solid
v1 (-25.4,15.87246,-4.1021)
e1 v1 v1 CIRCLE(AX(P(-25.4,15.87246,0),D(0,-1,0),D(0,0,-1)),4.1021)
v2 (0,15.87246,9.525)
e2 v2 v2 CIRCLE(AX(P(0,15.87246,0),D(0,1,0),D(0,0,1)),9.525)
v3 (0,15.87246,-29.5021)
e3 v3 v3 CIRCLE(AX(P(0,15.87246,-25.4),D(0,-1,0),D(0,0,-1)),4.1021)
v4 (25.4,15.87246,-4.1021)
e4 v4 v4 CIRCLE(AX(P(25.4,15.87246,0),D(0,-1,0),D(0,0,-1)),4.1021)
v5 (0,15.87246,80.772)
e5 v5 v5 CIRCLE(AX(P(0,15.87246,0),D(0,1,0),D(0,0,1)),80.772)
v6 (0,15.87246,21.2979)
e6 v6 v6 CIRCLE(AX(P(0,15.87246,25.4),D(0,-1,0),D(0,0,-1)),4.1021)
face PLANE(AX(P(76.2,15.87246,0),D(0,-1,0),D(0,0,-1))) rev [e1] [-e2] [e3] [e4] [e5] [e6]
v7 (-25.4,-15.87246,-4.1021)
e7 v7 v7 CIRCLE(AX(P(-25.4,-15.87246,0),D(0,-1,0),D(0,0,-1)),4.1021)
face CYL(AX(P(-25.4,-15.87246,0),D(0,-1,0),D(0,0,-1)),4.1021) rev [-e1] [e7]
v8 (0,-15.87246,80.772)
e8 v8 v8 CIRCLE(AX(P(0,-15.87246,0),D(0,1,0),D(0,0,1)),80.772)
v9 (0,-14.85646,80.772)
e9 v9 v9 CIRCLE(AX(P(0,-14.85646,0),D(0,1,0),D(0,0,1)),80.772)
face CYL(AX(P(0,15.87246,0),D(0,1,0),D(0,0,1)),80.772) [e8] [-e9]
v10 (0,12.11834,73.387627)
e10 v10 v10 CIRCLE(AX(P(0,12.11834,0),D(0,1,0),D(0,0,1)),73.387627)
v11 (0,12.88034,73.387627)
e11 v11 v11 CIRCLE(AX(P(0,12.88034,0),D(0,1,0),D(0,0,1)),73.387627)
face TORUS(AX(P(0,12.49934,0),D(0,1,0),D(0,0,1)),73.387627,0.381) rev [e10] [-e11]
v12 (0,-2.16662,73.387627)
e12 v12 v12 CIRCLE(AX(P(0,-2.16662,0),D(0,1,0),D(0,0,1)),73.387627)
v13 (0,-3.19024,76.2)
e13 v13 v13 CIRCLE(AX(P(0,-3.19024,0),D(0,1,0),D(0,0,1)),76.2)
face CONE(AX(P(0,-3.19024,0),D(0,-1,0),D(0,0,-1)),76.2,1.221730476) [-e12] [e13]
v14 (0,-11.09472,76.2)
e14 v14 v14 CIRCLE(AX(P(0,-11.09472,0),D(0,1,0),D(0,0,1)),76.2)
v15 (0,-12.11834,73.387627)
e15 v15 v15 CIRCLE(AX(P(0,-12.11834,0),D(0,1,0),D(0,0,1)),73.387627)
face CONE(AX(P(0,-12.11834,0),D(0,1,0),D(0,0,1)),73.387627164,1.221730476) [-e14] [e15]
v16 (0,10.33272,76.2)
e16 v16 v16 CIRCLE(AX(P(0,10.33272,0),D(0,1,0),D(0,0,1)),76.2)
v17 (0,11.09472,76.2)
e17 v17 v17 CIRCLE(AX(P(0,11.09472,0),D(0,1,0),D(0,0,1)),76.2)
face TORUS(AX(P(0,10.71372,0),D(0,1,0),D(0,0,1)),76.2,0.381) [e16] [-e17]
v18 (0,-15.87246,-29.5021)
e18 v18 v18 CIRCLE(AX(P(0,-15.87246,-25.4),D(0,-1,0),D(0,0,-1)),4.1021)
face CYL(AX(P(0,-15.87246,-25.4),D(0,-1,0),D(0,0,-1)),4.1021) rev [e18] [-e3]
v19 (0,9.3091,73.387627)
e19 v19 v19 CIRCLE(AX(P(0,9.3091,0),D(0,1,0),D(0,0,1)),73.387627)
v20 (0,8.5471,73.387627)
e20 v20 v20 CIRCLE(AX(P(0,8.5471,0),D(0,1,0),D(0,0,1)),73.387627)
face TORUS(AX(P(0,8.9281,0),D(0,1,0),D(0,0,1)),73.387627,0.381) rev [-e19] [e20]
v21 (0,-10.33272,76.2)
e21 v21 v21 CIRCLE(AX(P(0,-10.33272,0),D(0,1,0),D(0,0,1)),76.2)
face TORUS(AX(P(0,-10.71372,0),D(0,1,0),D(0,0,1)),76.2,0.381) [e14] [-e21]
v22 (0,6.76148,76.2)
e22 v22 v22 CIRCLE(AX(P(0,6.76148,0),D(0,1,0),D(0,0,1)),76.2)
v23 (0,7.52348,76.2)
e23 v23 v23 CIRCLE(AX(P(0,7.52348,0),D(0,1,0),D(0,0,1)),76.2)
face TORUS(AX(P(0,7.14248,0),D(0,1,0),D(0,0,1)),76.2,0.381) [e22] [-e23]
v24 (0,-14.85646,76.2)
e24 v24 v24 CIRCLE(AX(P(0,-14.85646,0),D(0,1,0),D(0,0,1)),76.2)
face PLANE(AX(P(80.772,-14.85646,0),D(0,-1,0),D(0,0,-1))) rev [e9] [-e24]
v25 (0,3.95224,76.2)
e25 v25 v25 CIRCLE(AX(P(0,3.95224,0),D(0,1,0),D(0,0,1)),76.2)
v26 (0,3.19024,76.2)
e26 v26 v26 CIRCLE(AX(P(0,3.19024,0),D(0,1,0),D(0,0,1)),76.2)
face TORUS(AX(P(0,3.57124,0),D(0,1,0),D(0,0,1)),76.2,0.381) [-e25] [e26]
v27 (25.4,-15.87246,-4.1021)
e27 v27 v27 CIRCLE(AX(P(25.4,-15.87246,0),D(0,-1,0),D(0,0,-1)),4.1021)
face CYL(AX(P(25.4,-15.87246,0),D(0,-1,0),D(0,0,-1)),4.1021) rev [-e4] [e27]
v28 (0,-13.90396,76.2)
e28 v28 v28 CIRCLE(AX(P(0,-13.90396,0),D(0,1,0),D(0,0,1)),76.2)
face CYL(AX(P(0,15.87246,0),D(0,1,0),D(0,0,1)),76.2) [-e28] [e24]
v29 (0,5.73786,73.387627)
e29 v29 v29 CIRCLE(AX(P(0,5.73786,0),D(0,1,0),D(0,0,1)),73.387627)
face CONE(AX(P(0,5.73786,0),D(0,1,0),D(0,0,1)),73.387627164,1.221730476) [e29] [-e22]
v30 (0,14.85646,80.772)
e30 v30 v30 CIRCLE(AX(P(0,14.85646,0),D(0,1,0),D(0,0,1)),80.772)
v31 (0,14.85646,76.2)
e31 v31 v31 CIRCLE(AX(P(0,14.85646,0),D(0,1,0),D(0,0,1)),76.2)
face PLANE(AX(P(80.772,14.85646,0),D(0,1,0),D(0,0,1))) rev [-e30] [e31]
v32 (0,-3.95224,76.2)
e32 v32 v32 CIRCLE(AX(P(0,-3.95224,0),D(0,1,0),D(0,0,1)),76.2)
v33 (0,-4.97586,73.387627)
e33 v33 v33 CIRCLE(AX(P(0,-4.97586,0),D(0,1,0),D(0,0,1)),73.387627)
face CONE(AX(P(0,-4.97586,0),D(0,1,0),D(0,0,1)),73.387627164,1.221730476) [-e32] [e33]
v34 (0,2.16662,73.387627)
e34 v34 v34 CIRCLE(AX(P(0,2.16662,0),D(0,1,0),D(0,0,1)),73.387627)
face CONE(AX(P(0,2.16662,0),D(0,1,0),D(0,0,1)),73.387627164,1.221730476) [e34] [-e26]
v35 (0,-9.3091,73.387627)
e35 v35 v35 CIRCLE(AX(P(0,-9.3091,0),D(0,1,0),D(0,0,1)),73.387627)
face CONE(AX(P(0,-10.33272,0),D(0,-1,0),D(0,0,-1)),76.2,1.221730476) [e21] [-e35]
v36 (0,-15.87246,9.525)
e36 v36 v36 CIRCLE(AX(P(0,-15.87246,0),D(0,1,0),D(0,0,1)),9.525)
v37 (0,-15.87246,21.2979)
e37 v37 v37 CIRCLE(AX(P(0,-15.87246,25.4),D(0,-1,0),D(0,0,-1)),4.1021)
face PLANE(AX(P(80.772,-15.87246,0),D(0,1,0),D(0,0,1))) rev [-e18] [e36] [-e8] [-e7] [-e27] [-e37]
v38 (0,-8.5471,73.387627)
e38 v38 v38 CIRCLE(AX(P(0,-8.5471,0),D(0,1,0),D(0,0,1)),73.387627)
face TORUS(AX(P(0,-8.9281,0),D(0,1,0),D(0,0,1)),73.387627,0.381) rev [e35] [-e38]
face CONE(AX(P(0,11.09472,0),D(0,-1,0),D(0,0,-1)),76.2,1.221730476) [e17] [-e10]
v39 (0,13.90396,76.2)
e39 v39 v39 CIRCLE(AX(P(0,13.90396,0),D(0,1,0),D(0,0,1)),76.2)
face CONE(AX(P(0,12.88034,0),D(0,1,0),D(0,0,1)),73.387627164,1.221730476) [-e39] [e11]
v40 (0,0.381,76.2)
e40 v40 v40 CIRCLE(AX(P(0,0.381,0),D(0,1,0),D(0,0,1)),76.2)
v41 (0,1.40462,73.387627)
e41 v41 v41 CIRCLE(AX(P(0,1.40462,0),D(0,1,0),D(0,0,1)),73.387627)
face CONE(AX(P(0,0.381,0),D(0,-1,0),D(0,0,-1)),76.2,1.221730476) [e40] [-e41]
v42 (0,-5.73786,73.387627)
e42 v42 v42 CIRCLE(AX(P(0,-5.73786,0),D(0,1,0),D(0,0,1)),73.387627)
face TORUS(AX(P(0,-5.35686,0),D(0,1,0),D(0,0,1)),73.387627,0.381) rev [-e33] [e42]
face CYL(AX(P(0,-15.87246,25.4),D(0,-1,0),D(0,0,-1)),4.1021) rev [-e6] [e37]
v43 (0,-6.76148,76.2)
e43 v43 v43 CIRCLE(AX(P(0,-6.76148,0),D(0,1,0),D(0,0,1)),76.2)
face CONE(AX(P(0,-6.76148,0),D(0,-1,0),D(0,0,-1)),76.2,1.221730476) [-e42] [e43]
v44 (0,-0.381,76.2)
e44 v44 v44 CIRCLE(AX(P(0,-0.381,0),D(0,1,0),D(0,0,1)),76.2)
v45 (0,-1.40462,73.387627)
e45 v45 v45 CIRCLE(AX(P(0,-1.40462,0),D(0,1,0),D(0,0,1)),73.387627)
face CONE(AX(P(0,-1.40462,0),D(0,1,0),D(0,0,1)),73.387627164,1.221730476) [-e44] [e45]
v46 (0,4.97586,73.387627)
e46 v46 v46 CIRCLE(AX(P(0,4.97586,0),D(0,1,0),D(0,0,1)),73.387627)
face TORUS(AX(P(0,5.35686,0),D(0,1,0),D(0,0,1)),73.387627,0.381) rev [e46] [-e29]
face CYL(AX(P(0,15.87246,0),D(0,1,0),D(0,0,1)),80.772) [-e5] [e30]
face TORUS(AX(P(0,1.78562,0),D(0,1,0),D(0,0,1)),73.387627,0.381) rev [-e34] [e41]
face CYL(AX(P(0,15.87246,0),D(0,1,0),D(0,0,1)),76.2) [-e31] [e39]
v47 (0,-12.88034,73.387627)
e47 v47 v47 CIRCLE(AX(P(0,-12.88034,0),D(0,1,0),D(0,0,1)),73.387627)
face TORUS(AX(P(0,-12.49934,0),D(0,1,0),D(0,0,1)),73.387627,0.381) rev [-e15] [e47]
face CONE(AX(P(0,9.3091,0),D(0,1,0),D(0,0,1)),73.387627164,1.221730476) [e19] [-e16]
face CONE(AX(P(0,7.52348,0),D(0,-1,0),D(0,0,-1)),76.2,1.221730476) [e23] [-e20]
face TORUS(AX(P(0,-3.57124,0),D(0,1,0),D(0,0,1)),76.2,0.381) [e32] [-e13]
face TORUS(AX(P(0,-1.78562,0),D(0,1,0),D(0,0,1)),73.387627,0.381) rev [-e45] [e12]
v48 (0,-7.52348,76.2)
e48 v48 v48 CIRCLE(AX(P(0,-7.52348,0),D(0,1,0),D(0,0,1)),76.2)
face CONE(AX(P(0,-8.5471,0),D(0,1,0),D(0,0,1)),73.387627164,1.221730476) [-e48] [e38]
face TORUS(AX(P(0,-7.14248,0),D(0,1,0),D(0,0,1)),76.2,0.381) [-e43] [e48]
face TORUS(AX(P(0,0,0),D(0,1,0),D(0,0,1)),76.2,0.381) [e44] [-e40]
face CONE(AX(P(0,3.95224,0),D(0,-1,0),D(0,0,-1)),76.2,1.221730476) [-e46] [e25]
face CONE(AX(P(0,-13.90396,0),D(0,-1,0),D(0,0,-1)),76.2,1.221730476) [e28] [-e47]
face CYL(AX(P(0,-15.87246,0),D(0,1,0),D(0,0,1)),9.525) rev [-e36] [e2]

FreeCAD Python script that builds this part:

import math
import FreeCAD as App
import Part
import Sketcher
Q = App.Units.Quantity

doc = App.newDocument("Part")
body = doc.addObject("PartDesign::Body", "Body")

sketch1 = doc.addObject("Sketcher::SketchObject", "Sketch")
body.addObject(sketch1)
sketch1.AttachmentSupport = (doc.XY_Plane, [""])
sketch1.MapMode = "FlatFace"
sketch1.addGeometry([
    Part.LineSegment(App.Vector(76.2, 13.9, 0), App.Vector(76.2, 14.86, 0)),
    Part.LineSegment(App.Vector(76.2, 14.86, 0), App.Vector(80.77, 14.86, 0)),
    Part.LineSegment(App.Vector(80.77, 14.86, 0), App.Vector(80.77, 15.87, 0)),
    Part.LineSegment(App.Vector(80.77, 15.87, 0), App.Vector(0, 15.87, 0)),
    Part.LineSegment(App.Vector(0, 15.87, 0), App.Vector(0, -15.87, 0)),
    Part.LineSegment(App.Vector(0, -15.87, 0), App.Vector(80.77, -15.87, 0)),
    Part.LineSegment(App.Vector(80.77, -15.87, 0), App.Vector(80.77, -14.86, 0)),
    Part.LineSegment(App.Vector(80.77, -14.86, 0), App.Vector(76.2, -14.86, 0)),
    Part.LineSegment(App.Vector(76.2, -14.86, 0), App.Vector(76.2, -13.9, 0)),
    Part.LineSegment(App.Vector(76.2, -13.9, 0), App.Vector(73.39, -12.88, 0)),
    Part.ArcOfCircle(Part.Circle(App.Vector(73.39, -12.5, 0), App.Vector(0, 0, 1), 0.38), math.radians(90), math.radians(270)),
    Part.LineSegment(App.Vector(73.39, -12.12, 0), App.Vector(76.2, -11.09, 0)),
    Part.ArcOfCircle(Part.Circle(App.Vector(76.2, -10.71, 0), App.Vector(0, 0, 1), 0.38), math.radians(-90), math.radians(90)),
    Part.LineSegment(App.Vector(76.2, -10.33, 0), App.Vector(73.39, -9.31, 0)),
    Part.ArcOfCircle(Part.Circle(App.Vector(73.39, -8.93, 0), App.Vector(0, 0, 1), 0.38), math.radians(90), math.radians(270)),
    Part.LineSegment(App.Vector(73.39, -8.55, 0), App.Vector(76.2, -7.52, 0)),
    Part.ArcOfCircle(Part.Circle(App.Vector(76.2, -7.14, 0), App.Vector(0, 0, 1), 0.38), math.radians(-90), math.radians(90)),
    Part.LineSegment(App.Vector(76.2, -6.76, 0), App.Vector(73.39, -5.74, 0)),
    Part.ArcOfCircle(Part.Circle(App.Vector(73.39, -5.36, 0), App.Vector(0, 0, 1), 0.38), math.radians(90), math.radians(270)),
    Part.LineSegment(App.Vector(73.39, -4.98, 0), App.Vector(76.2, -3.95, 0)),
    Part.ArcOfCircle(Part.Circle(App.Vector(76.2, -3.57, 0), App.Vector(0, 0, 1), 0.38), math.radians(-90), math.radians(90)),
    Part.LineSegment(App.Vector(76.2, -3.19, 0), App.Vector(73.39, -2.17, 0)),
    Part.ArcOfCircle(Part.Circle(App.Vector(73.39, -1.79, 0), App.Vector(0, 0, 1), 0.38), math.radians(90), math.radians(270)),
    Part.LineSegment(App.Vector(73.39, -1.4, 0), App.Vector(76.2, -0.38, 0)),
    Part.ArcOfCircle(Part.Circle(App.Vector(76.2, 0, 0), App.Vector(0, 0, 1), 0.38), math.radians(-90), math.radians(90)),
    Part.LineSegment(App.Vector(76.2, 0.38, 0), App.Vector(73.39, 1.4, 0)),
    Part.ArcOfCircle(Part.Circle(App.Vector(73.39, 1.79, 0), App.Vector(0, 0, 1), 0.38), math.radians(90), math.radians(270)),
    Part.LineSegment(App.Vector(73.39, 2.17, 0), App.Vector(76.2, 3.19, 0)),
    Part.ArcOfCircle(Part.Circle(App.Vector(76.2, 3.57, 0), App.Vector(0, 0, 1), 0.38), math.radians(-90), math.radians(90)),
    Part.LineSegment(App.Vector(76.2, 3.95, 0), App.Vector(73.39, 4.98, 0)),
    Part.ArcOfCircle(Part.Circle(App.Vector(73.39, 5.36, 0), App.Vector(0, 0, 1), 0.38), math.radians(90), math.radians(270)),
    Part.LineSegment(App.Vector(73.39, 5.74, 0), App.Vector(76.2, 6.76, 0)),
    Part.ArcOfCircle(Part.Circle(App.Vector(76.2, 7.14, 0), App.Vector(0, 0, 1), 0.38), math.radians(-90), math.radians(90)),
    Part.LineSegment(App.Vector(76.2, 7.52, 0), App.Vector(73.39, 8.55, 0)),
    Part.ArcOfCircle(Part.Circle(App.Vector(73.39, 8.93, 0), App.Vector(0, 0, 1), 0.38), math.radians(90), math.radians(270)),
    Part.LineSegment(App.Vector(73.39, 9.31, 0), App.Vector(76.2, 10.33, 0)),
    Part.ArcOfCircle(Part.Circle(App.Vector(76.2, 10.71, 0), App.Vector(0, 0, 1), 0.38), math.radians(-90), math.radians(90)),
    Part.LineSegment(App.Vector(76.2, 11.09, 0), App.Vector(73.39, 12.12, 0)),
    Part.ArcOfCircle(Part.Circle(App.Vector(73.39, 12.5, 0), App.Vector(0, 0, 1), 0.38), math.radians(90), math.radians(270)),
    Part.LineSegment(App.Vector(73.39, 12.88, 0), App.Vector(76.2, 13.9, 0)),
], False)
sketch1.addConstraint([
    Sketcher.Constraint("Coincident", 0, 2, 1, 1),
    Sketcher.Constraint("Coincident", 1, 2, 2, 1),
    Sketcher.Constraint("Coincident", 2, 2, 3, 1),
    Sketcher.Constraint("Coincident", 3, 2, 4, 1),
    Sketcher.Constraint("Coincident", 4, 2, 5, 1),
    Sketcher.Constraint("Coincident", 5, 2, 6, 1),
    Sketcher.Constraint("Coincident", 6, 2, 7, 1),
    Sketcher.Constraint("Coincident", 7, 2, 8, 1),
    Sketcher.Constraint("Coincident", 8, 2, 9, 1),
    Sketcher.Constraint("Coincident", 9, 2, 10, 2),
    Sketcher.Constraint("Coincident", 10, 1, 11, 1),
    Sketcher.Constraint("Coincident", 11, 2, 12, 1),
    Sketcher.Constraint("Coincident", 12, 2, 13, 1),
    Sketcher.Constraint("Coincident", 13, 2, 14, 2),
    Sketcher.Constraint("Coincident", 14, 1, 15, 1),
    Sketcher.Constraint("Coincident", 15, 2, 16, 1),
    Sketcher.Constraint("Coincident", 16, 2, 17, 1),
    Sketcher.Constraint("Coincident", 17, 2, 18, 2),
    Sketcher.Constraint("Coincident", 18, 1, 19, 1),
    Sketcher.Constraint("Coincident", 19, 2, 20, 1),
    Sketcher.Constraint("Coincident", 20, 2, 21, 1),
    Sketcher.Constraint("Coincident", 21, 2, 22, 2),
    Sketcher.Constraint("Coincident", 22, 1, 23, 1),
    Sketcher.Constraint("Coincident", 23, 2, 24, 1),
    Sketcher.Constraint("Coincident", 24, 2, 25, 1),
    Sketcher.Constraint("Coincident", 25, 2, 26, 2),
    Sketcher.Constraint("Coincident", 26, 1, 27, 1),
    Sketcher.Constraint("Coincident", 27, 2, 28, 1),
    Sketcher.Constraint("Coincident", 28, 2, 29, 1),
    Sketcher.Constraint("Coincident", 29, 2, 30, 2),
    Sketcher.Constraint("Coincident", 30, 1, 31, 1),
    Sketcher.Constraint("Coincident", 31, 2, 32, 1),
    Sketcher.Constraint("Coincident", 32, 2, 33, 1),
    Sketcher.Constraint("Coincident", 33, 2, 34, 2),
    Sketcher.Constraint("Coincident", 34, 1, 35, 1),
    Sketcher.Constraint("Coincident", 35, 2, 36, 1),
    Sketcher.Constraint("Coincident", 36, 2, 37, 1),
    Sketcher.Constraint("Coincident", 37, 2, 38, 2),
    Sketcher.Constraint("Coincident", 38, 1, 39, 1),
    Sketcher.Constraint("Coincident", 39, 2, 0, 1),
    Sketcher.Constraint("Vertical", 0),
    Sketcher.Constraint("Horizontal", 1),
    Sketcher.Constraint("Vertical", 2),
    Sketcher.Constraint("Horizontal", 3),
    Sketcher.Constraint("Vertical", 4),
    Sketcher.Constraint("Horizontal", 5),
    Sketcher.Constraint("Vertical", 6),
    Sketcher.Constraint("Horizontal", 7),
    Sketcher.Constraint("Vertical", 8),
    Sketcher.Constraint("Equal", 10, 12),
    Sketcher.Constraint("Equal", 12, 14),
    Sketcher.Constraint("Equal", 14, 16),
    Sketcher.Constraint("Equal", 16, 18),
    Sketcher.Constraint("Equal", 18, 20),
    Sketcher.Constraint("Equal", 20, 22),
    Sketcher.Constraint("Equal", 22, 24),
    Sketcher.Constraint("Equal", 24, 26),
    Sketcher.Constraint("Equal", 26, 28),
    Sketcher.Constraint("Equal", 28, 30),
    Sketcher.Constraint("Equal", 30, 32),
    Sketcher.Constraint("Equal", 32, 34),
    Sketcher.Constraint("Equal", 34, 36),
    Sketcher.Constraint("Equal", 36, 38),
    Sketcher.Constraint("Symmetric", 3, 2, 4, 2, -1, 1),
    Sketcher.Constraint("Symmetric", 22, 3, 26, 3, -1),
    Sketcher.Constraint("Symmetric", 20, 3, 28, 3, -1),
    Sketcher.Constraint("Symmetric", 18, 3, 30, 3, -1),
    Sketcher.Constraint("Symmetric", 16, 3, 32, 3, -1),
    Sketcher.Constraint("Symmetric", 14, 3, 34, 3, -1),
    Sketcher.Constraint("Symmetric", 12, 3, 36, 3, -1),
    Sketcher.Constraint("Symmetric", 10, 3, 38, 3, -1),
    Sketcher.Constraint("Symmetric", 1, 2, 6, 2, -1),
    Sketcher.Constraint("Symmetric", 23, 2, 24, 2, -1),
    Sketcher.Constraint("Symmetric", 8, 2, 39, 2, -1),
    Sketcher.Constraint("Parallel", 9, 13),
    Sketcher.Constraint("Parallel", 11, 15),
    Sketcher.Constraint("Parallel", 13, 17),
    Sketcher.Constraint("Parallel", 15, 19),
    Sketcher.Constraint("Parallel", 17, 21),
    Sketcher.Constraint("Parallel", 19, 23),
    Sketcher.Constraint("Parallel", 21, 25),
    Sketcher.Constraint("Parallel", 23, 27),
    Sketcher.Constraint("Parallel", 25, 29),
    Sketcher.Constraint("Parallel", 27, 31),
    Sketcher.Constraint("Parallel", 29, 33),
    Sketcher.Constraint("Parallel", 31, 35),
    Sketcher.Constraint("Parallel", 33, 37),
    Sketcher.Constraint("Parallel", 35, 39),
    Sketcher.Constraint("Vertical", 10, 3, 14, 3),
    Sketcher.Constraint("Vertical", 12, 3, 16, 3),
    Sketcher.Constraint("Vertical", 14, 3, 18, 3),
    Sketcher.Constraint("Vertical", 16, 3, 20, 3),
    Sketcher.Constraint("Vertical", 18, 3, 22, 3),
    Sketcher.Constraint("Vertical", 20, 3, 24, 3),
    Sketcher.Constraint("Vertical", 36, 3, 0, 2),
    Sketcher.Constraint("Vertical", 38, 3, 9, 2),
    Sketcher.Constraint("Vertical", 9, 2, 10, 1),
    Sketcher.Constraint("Vertical", 8, 2, 11, 2),
    Sketcher.Constraint("Vertical", 11, 2, 12, 2),
    Sketcher.Constraint("Vertical", 10, 1, 13, 2),
    Sketcher.Constraint("Vertical", 13, 2, 14, 1),
    Sketcher.Constraint("Vertical", 12, 2, 15, 2),
    Sketcher.Constraint("Vertical", 15, 2, 16, 2),
    Sketcher.Constraint("Vertical", 14, 1, 17, 2),
    Sketcher.Constraint("Vertical", 17, 2, 18, 1),
    Sketcher.Constraint("Vertical", 16, 2, 19, 2),
    Sketcher.Constraint("Vertical", 19, 2, 20, 2),
    Sketcher.Constraint("Vertical", 18, 1, 21, 2),
    Sketcher.Constraint("Vertical", 21, 2, 22, 1),
    Sketcher.Constraint("Vertical", 20, 2, 23, 2),
    Sketcher.Constraint("Vertical", 22, 1, 25, 2),
    Sketcher.Constraint("Vertical", 25, 2, 26, 1),
    Sketcher.Constraint("Vertical", 27, 2, 28, 2),
    Sketcher.Constraint("Vertical", 29, 2, 30, 1),
    Sketcher.Constraint("Vertical", 31, 2, 32, 2),
    Sketcher.Constraint("Vertical", 33, 2, 34, 1),
    Sketcher.Constraint("Vertical", 35, 2, 36, 2),
    Sketcher.Constraint("DistanceX", -1, 1, 12, 3, Q("3 in")),
    Sketcher.Constraint("Angle", 9, Q("160 deg")),
    Sketcher.Constraint("Radius", 10, Q("0.015 in")),
    Sketcher.Constraint("DistanceX", 1, 1, 1, 2, Q("0.18 in")),
    Sketcher.Constraint("DistanceY", 2, 1, 2, 2, Q("0.04 in")),
    Sketcher.Constraint("DistanceY", 0, 1, 0, 2, Q("0.0375 in")),
    Sketcher.Constraint("DistanceY", 4, 2, 4, 1, Q("1.2498 in")),
])
revolution = doc.addObject("PartDesign::Revolution", "Revolution")
body.addObject(revolution)
revolution.Profile = sketch1
revolution.ReferenceAxis = (sketch1, ["V_Axis"])
revolution.Angle = 360

sketch2 = doc.addObject("Sketcher::SketchObject", "Sketch001")
body.addObject(sketch2)
sketch2.AttachmentSupport = (doc.XZ_Plane, [""])
sketch2.MapMode = "FlatFace"
sketch2.AttachmentOffset = App.Placement(App.Vector(0, 0, -0.6249 * 25.4), App.Rotation())
sketch2.addGeometry(Part.Circle(App.Vector(0, 0, 0), App.Vector(0, 0, 1), 10), False)
sketch2.addConstraint([
    Sketcher.Constraint("Coincident", 0, 3, -1, 1),
    Sketcher.Constraint("Diameter", 0, Q("0.75 in")),
])
pocket1 = doc.addObject("PartDesign::Pocket", "Pocket")
body.addObject(pocket1)
pocket1.Profile = sketch2
pocket1.Type = "ThroughAll"
pocket1.Reversed = True

sketch3 = doc.addObject("Sketcher::SketchObject", "Sketch002")
body.addObject(sketch3)
sketch3.AttachmentSupport = (doc.XZ_Plane, [""])
sketch3.MapMode = "FlatFace"
sketch3.AttachmentOffset = App.Placement(App.Vector(0, 0, 0.6249 * 25.4), App.Rotation())
sketch3.addGeometry(Part.Circle(App.Vector(0, -25.4, 0), App.Vector(0, 0, 1), 4.1), False)
sketch3.addConstraint([
    Sketcher.Constraint("PointOnObject", 0, 3, -2),
    Sketcher.Constraint("Diameter", 0, Q("0.323 in")),
    Sketcher.Constraint("DistanceY", 0, 3, -1, 1, Q("1 in")),
])
doc.recompute()
hole = doc.addObject("PartDesign::Hole", "Hole")
body.addObject(hole)
hole.Profile = sketch3
hole.ThreadType = "None"
hole.Diameter = Q("0.323 in")
hole.DepthType = "ThroughAll"
doc.recompute()

polarpattern = doc.addObject("PartDesign::PolarPattern", "PolarPattern")
body.addObject(polarpattern)
polarpattern.Originals = [hole]
polarpattern.Axis = (doc.Y_Axis, [""])
polarpattern.Angle = 360
polarpattern.Occurrences = 4
body.Tip = polarpattern

doc.recompute()
